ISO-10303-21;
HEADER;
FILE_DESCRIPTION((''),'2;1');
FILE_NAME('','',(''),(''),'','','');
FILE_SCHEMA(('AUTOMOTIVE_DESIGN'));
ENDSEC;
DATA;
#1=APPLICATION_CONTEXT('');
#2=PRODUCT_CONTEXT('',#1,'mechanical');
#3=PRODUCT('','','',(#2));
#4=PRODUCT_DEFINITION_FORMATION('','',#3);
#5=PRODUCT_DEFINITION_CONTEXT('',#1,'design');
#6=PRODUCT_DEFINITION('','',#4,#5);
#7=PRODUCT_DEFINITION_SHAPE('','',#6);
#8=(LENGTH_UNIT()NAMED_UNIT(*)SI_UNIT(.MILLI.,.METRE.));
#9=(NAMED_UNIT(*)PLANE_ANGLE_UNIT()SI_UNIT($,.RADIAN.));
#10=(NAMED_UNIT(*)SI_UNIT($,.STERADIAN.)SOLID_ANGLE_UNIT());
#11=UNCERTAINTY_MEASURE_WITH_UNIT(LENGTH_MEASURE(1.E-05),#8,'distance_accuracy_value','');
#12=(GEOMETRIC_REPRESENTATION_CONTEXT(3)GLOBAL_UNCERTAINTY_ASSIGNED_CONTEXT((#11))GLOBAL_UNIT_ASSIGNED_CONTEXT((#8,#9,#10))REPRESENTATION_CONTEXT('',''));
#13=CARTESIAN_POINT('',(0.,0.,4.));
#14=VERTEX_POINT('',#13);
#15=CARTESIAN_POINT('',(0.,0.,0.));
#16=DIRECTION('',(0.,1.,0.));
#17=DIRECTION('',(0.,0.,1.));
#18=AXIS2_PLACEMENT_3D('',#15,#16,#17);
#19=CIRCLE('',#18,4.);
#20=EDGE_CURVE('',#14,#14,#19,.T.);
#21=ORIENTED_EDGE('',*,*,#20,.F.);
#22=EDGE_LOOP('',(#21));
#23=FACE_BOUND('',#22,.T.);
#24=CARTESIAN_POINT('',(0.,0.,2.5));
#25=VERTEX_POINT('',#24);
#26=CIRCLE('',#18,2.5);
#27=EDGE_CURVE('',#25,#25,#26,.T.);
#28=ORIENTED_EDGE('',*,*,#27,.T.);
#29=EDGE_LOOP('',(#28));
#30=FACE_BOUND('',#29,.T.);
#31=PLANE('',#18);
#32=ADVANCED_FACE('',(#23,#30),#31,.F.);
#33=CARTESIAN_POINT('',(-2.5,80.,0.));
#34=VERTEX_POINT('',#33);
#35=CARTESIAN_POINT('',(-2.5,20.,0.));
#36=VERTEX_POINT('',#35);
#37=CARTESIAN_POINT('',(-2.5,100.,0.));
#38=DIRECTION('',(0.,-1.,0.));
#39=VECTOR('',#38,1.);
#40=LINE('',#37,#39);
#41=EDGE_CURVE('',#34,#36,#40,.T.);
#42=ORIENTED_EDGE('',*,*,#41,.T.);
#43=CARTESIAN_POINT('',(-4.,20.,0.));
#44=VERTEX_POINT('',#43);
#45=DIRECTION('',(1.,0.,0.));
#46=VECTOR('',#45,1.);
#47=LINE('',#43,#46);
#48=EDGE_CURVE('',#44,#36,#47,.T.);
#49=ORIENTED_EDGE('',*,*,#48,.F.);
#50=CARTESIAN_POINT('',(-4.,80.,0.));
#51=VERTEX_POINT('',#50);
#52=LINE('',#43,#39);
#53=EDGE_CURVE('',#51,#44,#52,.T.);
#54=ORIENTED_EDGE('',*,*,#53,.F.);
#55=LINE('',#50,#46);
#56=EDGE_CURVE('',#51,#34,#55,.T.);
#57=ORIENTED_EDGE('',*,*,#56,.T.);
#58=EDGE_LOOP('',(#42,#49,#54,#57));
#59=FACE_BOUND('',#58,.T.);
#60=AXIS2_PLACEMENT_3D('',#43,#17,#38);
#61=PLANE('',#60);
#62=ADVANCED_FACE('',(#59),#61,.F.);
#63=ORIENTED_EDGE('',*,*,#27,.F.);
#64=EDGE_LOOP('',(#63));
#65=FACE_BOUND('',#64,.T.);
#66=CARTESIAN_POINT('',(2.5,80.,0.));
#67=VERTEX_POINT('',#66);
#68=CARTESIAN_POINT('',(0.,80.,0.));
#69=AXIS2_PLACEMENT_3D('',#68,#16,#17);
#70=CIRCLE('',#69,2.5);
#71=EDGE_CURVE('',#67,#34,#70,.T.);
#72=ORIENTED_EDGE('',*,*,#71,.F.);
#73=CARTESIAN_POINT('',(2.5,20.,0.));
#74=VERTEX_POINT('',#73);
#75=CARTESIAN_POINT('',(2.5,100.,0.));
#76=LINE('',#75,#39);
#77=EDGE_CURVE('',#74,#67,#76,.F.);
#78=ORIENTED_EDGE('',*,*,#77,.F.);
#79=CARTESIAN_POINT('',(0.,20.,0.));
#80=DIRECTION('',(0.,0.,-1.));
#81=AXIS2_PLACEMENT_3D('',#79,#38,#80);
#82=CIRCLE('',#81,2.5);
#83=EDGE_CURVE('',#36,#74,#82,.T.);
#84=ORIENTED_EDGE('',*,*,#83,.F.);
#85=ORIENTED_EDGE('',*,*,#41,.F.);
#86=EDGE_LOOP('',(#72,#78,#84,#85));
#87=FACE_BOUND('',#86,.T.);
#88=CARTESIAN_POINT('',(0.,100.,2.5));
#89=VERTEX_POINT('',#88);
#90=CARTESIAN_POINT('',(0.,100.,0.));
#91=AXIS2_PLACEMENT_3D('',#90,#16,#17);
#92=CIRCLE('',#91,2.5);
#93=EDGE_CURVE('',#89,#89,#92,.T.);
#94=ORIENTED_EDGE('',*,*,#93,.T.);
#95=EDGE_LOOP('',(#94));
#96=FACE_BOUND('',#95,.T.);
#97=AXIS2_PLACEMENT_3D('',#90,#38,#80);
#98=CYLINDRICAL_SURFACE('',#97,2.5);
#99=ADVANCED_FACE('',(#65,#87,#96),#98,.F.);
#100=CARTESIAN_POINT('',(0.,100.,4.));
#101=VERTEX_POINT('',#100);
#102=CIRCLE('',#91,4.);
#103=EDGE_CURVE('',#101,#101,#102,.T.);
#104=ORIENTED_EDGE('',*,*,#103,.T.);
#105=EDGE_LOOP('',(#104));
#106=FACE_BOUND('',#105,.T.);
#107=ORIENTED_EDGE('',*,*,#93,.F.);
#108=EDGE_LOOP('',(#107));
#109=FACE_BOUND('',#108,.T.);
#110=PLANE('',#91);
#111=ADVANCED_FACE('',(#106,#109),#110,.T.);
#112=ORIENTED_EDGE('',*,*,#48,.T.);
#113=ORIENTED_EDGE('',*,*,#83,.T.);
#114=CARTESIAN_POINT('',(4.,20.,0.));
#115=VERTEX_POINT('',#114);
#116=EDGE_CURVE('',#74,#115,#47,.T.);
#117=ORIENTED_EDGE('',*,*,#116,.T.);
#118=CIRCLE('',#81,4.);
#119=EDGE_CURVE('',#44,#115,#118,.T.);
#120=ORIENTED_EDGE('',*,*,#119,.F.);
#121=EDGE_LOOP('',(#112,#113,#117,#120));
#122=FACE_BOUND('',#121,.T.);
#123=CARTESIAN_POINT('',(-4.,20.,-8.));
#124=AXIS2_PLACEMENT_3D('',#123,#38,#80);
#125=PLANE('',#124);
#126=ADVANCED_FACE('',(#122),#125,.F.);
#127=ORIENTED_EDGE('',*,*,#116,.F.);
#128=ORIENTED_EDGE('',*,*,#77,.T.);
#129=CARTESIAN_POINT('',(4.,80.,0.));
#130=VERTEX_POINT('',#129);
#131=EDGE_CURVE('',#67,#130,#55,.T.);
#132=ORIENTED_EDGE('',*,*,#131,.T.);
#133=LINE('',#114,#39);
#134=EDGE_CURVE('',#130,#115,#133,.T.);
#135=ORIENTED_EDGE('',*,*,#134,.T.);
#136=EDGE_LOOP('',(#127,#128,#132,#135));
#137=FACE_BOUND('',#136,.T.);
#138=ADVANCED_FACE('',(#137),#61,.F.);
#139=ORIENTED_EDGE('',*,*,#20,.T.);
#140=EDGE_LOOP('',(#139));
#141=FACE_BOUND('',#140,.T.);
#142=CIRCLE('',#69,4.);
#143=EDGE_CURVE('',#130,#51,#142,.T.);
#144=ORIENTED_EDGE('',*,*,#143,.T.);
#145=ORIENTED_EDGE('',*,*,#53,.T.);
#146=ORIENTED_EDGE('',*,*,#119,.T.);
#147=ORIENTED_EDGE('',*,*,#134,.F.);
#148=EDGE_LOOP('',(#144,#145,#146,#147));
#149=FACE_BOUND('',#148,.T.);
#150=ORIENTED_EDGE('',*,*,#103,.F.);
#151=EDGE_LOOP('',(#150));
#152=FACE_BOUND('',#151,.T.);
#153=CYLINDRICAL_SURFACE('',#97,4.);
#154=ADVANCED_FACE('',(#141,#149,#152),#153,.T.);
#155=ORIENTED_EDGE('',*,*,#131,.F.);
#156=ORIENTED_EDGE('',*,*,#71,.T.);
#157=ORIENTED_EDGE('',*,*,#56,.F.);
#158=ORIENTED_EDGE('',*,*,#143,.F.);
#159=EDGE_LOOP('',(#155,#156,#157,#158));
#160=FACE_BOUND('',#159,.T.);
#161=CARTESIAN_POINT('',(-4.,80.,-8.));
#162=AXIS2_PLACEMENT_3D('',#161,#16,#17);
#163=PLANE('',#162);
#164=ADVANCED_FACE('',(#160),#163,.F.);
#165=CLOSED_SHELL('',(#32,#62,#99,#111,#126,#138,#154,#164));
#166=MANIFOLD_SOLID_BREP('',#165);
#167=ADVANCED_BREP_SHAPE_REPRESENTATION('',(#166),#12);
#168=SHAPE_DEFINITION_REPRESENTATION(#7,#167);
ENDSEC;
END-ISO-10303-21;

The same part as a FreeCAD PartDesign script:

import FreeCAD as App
import Part
import Sketcher
from FreeCAD import Vector
Q = App.Units.Quantity


def add_polygon(sketch, points):
    """Adds a closed chain of lines whose ends are joined by coincident constraints."""
    first, n = sketch.GeometryCount, len(points)
    for a, b in zip(points, points[1:] + points[:1]):
        sketch.addGeometry(Part.LineSegment(App.Vector(*a, 0), App.Vector(*b, 0)), False)
    for i in range(n):
        sketch.addConstraint(Sketcher.Constraint("Coincident", first + i, 2, first + (i + 1) % n, 1))

doc = App.newDocument("Part")
body = doc.addObject("PartDesign::Body", "Body")

sketch1 = body.newObject("Sketcher::SketchObject", "Sketch")
sketch1.AttachmentSupport = (doc.getObject("XZ_Plane"), [""])
sketch1.MapMode = "FlatFace"
sketch1.addGeometry([
    Part.Circle(Vector(0, 0, 0), Vector(0, 0, 1), 4),
    Part.Circle(Vector(0, 0, 0), Vector(0, 0, 1), 2.5),
], False)
sketch1.addConstraint([
    Sketcher.Constraint("Coincident", 0, 3, -1, 1),
    Sketcher.Constraint("Coincident", 1, 3, -1, 1),
    Sketcher.Constraint("Diameter", 0, Q("8 mm")),
    Sketcher.Constraint("Diameter", 1, Q("5 mm")),
])
pad1 = body.newObject("PartDesign::Pad", "Pad")
pad1.Profile = sketch1
pad1.Length = 100
pad1.Reversed = True

sketch2 = body.newObject("Sketcher::SketchObject", "Sketch001")
sketch2.AttachmentSupport = (doc.getObject("YZ_Plane"), [""])
sketch2.MapMode = "FlatFace"
add_polygon(sketch2, [(80, 0), (20, 0), (20, -8), (80, -8)])
sketch2.addConstraint([
    Sketcher.Constraint("Horizontal", 0),
    Sketcher.Constraint("Vertical", 1),
    Sketcher.Constraint("Horizontal", 2),
    Sketcher.Constraint("Vertical", 3),
    Sketcher.Constraint("PointOnObject", 0, 2, -1),
    Sketcher.Constraint("DistanceX", 0, 2, 0, 1, Q("60 mm")),
    Sketcher.Constraint("DistanceY", 1, 2, 1, 1, Q("8 mm")),
    Sketcher.Constraint("DistanceX", -1, 1, 0, 2, Q("20 mm")),
])
pocket1 = body.newObject("PartDesign::Pocket", "Pocket")
pocket1.Profile = sketch2
pocket1.Type = "ThroughAll"
pocket1.Midplane = True

doc.recompute()
